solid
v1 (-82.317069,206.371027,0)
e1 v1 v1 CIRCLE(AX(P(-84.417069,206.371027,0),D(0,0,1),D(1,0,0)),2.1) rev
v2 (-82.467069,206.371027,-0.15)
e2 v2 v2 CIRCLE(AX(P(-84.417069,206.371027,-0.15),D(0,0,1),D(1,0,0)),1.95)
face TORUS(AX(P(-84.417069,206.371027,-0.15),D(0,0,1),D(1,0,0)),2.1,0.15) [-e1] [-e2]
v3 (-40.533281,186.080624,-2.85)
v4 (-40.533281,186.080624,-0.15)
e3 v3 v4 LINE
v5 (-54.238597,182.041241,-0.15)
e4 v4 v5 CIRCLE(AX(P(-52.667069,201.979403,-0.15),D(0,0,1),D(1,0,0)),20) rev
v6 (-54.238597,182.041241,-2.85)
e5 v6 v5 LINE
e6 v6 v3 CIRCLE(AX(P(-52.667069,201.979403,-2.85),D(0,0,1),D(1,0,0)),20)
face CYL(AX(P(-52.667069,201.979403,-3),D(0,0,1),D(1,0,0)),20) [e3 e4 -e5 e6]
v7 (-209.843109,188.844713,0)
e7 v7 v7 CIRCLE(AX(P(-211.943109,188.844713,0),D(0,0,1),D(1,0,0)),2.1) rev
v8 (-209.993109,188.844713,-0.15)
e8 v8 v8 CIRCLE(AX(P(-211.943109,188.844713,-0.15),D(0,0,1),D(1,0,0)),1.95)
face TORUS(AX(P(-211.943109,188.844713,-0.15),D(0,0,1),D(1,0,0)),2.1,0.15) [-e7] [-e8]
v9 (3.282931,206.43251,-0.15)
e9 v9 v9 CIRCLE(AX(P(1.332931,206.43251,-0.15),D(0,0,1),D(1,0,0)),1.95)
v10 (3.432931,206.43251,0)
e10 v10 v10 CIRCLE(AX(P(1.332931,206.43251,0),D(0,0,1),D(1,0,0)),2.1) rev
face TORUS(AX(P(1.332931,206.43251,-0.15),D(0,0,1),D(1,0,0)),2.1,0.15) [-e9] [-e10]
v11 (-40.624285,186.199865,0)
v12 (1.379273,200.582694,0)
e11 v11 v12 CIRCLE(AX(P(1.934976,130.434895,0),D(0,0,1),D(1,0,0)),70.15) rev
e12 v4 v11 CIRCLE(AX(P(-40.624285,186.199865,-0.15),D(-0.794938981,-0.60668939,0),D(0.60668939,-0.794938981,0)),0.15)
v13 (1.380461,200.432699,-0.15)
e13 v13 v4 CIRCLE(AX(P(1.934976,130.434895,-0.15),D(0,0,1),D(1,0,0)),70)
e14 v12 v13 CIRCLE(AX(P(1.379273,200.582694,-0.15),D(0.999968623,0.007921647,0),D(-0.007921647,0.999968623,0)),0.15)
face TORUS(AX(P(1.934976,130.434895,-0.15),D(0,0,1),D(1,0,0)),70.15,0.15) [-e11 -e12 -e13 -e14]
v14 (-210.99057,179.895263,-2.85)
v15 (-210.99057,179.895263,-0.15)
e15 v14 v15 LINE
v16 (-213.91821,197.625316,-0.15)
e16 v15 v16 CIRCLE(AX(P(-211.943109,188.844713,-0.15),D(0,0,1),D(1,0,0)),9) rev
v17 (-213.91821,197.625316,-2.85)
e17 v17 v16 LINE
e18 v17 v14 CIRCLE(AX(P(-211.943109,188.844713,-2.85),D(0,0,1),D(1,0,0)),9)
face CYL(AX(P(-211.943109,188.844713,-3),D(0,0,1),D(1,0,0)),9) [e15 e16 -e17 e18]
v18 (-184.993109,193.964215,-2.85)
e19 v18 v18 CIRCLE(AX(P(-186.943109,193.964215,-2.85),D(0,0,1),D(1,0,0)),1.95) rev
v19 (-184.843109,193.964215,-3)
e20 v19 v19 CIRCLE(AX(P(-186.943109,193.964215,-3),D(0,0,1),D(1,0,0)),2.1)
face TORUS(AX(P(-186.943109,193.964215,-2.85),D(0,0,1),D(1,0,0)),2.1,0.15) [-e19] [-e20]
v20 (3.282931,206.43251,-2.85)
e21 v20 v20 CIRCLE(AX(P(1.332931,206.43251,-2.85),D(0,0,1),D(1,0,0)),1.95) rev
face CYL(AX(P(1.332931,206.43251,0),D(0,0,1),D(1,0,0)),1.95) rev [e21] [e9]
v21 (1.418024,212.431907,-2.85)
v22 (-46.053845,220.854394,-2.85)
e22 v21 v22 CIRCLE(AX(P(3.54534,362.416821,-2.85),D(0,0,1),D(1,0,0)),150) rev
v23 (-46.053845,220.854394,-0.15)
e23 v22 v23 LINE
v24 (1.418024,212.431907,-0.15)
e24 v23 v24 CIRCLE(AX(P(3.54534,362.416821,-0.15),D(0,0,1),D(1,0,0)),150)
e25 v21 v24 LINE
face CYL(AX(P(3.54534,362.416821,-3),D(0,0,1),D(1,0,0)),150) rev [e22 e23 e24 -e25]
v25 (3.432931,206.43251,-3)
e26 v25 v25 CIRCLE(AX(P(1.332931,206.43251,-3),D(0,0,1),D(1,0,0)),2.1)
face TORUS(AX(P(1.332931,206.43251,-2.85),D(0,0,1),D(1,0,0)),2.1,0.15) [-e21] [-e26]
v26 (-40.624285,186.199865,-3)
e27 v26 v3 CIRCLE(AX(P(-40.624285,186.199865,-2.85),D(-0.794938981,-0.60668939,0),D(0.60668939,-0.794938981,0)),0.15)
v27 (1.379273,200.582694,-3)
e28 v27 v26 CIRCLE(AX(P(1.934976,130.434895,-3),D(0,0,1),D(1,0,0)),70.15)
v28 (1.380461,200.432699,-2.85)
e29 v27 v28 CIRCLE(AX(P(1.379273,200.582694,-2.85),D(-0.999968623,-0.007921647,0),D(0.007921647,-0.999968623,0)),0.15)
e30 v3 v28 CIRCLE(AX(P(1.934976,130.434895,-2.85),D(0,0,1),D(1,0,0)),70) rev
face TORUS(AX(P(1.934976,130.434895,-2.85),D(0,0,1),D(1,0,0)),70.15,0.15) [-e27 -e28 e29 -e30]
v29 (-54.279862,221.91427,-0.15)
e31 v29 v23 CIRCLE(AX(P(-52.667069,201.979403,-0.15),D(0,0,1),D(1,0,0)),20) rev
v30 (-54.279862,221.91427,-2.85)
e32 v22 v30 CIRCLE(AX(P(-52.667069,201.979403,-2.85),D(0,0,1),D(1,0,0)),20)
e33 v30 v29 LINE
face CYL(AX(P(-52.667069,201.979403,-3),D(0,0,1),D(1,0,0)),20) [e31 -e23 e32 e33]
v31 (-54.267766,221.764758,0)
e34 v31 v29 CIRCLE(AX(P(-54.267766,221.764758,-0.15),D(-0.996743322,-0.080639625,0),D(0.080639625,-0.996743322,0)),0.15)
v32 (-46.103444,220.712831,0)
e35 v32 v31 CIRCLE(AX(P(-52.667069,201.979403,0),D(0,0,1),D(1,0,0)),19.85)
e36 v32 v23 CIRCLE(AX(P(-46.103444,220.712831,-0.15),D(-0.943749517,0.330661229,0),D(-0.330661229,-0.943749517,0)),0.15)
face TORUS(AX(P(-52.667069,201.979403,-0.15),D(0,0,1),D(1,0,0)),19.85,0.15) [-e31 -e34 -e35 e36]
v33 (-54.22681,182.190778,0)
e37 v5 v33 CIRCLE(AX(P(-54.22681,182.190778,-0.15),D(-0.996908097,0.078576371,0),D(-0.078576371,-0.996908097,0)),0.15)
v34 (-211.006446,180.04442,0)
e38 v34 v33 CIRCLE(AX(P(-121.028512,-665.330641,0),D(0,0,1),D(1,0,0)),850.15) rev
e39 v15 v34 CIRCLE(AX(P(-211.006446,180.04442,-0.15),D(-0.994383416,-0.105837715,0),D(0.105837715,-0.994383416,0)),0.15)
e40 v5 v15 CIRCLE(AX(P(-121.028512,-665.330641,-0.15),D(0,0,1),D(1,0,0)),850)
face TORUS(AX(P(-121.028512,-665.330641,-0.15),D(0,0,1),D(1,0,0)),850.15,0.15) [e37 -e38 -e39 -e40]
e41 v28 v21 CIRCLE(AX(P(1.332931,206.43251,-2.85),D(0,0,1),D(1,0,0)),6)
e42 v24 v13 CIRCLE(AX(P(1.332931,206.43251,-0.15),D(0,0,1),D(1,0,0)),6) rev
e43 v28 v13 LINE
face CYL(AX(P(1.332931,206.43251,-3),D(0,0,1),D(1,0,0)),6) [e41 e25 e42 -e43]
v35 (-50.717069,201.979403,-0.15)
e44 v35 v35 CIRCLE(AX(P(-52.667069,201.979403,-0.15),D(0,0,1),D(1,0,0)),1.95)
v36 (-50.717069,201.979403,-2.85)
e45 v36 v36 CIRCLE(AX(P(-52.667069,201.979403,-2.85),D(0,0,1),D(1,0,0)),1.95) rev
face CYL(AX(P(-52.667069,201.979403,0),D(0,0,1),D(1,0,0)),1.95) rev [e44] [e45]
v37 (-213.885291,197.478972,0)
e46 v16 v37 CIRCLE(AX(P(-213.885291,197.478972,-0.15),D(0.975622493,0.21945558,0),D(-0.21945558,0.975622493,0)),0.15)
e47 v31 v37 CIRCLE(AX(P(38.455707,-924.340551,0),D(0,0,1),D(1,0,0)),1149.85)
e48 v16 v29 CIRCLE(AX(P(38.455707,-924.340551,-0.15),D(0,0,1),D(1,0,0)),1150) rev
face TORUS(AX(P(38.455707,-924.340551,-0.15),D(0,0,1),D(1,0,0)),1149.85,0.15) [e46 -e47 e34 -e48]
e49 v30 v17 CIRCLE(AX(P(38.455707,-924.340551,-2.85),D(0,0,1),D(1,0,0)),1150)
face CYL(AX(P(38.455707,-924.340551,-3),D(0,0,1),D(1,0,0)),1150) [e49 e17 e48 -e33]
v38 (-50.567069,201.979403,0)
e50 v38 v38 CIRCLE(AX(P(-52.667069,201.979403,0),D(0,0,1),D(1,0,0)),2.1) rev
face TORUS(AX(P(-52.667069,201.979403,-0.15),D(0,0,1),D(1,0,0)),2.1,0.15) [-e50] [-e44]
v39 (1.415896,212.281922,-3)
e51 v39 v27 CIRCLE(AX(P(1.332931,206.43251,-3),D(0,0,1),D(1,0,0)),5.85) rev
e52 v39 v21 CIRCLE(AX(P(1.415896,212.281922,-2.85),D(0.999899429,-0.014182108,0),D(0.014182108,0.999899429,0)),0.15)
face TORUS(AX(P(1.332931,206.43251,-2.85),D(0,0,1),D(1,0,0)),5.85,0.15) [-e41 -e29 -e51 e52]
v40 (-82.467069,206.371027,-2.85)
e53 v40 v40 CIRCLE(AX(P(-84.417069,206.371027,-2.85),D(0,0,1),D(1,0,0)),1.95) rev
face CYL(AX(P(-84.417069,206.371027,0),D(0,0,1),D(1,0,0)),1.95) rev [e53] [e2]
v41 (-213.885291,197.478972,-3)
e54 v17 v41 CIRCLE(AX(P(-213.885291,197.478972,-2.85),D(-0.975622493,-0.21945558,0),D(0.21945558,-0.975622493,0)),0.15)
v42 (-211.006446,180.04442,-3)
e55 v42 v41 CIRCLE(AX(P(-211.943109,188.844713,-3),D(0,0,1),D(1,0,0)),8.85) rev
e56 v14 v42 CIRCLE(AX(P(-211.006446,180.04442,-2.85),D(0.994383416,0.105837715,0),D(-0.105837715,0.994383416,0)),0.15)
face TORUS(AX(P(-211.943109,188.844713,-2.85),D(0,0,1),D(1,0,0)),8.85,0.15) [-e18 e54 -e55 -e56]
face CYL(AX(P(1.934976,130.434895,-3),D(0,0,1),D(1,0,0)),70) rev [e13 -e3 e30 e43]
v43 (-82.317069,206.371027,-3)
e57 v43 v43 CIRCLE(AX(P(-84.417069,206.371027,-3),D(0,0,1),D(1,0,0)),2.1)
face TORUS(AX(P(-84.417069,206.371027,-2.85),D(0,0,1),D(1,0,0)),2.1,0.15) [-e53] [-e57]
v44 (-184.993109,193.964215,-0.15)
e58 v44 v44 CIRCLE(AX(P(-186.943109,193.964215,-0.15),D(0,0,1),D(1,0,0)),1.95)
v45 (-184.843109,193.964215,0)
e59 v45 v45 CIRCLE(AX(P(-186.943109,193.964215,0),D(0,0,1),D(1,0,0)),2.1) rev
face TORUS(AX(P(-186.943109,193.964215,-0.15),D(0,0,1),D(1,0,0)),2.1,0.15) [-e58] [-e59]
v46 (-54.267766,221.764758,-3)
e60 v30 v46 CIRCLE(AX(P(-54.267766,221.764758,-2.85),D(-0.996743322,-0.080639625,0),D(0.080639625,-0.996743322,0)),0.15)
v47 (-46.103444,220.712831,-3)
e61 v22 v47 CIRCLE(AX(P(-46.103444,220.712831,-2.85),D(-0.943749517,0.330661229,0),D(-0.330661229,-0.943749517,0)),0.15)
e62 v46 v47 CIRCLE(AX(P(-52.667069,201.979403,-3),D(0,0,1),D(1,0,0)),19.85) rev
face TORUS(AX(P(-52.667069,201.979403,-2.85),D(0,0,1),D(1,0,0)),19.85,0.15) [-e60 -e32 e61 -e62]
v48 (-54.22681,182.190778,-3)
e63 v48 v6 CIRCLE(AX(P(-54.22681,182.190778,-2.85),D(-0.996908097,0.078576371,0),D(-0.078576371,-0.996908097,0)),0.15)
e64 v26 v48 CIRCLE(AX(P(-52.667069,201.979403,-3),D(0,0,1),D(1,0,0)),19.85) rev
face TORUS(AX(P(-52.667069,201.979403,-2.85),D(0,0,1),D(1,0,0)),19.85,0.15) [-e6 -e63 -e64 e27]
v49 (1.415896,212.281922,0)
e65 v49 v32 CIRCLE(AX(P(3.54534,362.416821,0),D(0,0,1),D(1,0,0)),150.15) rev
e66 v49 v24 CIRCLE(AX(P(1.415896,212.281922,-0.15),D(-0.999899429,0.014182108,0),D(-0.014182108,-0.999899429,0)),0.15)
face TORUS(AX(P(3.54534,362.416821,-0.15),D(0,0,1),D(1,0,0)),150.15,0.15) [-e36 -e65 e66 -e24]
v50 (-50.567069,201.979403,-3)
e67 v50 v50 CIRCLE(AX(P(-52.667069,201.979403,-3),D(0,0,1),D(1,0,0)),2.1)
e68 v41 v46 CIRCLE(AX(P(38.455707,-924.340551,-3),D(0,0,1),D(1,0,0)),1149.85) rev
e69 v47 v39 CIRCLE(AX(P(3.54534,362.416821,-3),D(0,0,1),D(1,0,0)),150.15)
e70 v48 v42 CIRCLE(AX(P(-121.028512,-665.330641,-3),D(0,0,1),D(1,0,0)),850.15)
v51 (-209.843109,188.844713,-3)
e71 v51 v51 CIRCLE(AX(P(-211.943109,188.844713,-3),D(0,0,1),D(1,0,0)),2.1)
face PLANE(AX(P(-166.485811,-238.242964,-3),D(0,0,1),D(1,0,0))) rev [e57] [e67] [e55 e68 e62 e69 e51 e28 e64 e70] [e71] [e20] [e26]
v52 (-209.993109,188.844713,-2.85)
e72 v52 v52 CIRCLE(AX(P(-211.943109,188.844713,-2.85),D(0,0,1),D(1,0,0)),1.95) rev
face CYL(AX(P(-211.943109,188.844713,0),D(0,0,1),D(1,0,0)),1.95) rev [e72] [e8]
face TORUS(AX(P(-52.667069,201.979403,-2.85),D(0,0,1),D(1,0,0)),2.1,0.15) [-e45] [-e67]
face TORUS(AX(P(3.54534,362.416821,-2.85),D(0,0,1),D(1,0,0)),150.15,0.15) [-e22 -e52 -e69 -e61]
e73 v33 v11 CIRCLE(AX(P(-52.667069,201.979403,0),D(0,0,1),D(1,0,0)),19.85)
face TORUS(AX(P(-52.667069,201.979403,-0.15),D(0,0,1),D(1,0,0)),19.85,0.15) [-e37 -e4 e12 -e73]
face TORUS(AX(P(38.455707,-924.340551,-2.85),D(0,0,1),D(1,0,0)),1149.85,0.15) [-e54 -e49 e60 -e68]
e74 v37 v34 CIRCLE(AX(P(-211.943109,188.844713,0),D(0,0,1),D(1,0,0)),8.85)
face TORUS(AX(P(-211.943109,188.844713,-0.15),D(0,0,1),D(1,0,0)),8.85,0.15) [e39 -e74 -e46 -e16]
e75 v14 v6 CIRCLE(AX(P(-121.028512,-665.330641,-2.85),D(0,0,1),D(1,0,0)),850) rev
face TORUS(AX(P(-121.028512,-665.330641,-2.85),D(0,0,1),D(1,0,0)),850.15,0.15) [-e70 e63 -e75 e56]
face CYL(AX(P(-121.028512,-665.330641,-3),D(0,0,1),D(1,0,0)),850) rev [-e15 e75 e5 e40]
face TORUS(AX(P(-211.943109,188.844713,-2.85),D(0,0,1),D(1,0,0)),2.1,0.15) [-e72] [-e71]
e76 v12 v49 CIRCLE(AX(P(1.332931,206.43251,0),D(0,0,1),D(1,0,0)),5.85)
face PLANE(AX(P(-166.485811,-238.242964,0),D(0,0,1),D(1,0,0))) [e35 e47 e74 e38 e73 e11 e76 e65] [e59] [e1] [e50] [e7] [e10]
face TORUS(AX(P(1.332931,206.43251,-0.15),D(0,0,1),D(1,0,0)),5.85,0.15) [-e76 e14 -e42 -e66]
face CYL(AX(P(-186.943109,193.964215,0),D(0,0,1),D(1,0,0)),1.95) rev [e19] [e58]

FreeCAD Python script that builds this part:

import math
import FreeCAD as App
import Part
import Sketcher
from FreeCAD import Vector


def edges_at(feature, points):
    """Names of the edges that pass closest to the given points."""
    edges = feature.Shape.Edges
    near = lambda p: min(range(len(edges)), key=lambda i: edges[i].distToShape(Part.Vertex(*p))[0])
    return sorted({f"Edge{near(p) + 1}" for p in points})

doc = App.newDocument("Part")
params = doc.addObject("Spreadsheet::Sheet", "Params")
for row, (alias, value) in enumerate([
    ("sketch1_radius", "1150 mm"),
    ("sketch1_radius2", "9 mm"),
    ("sketch1_radius3", "850 mm"),
    ("sketch1_radius4", "20 mm"),
    ("sketch1_radius5", "70 mm"),
    ("pad1_length", "3 mm"),
    ("sketch2_diameter", "3.9 mm"),
    ("hole_diameter", "3.9 mm"),
    ("hole_depth", "10 mm"),
    ("fillet_radius", "0.15 mm"),
], start=1):
    params.set(f"A{row}", alias)
    params.set(f"B{row}", "=" + value)
    params.setAlias(f"B{row}", alias)

body = doc.addObject("PartDesign::Body", "Body")

# Sketch on XY plane
sketch1 = body.newObject("Sketcher::SketchObject", "Sketch")
sketch1.AttachmentSupport = (doc.getObject("XY_Plane"), [""])
sketch1.MapMode = "FlatFace"
sketch1.addGeometry([
    Part.ArcOfCircle(Part.Circle(Vector(38, -924, 0), Vector(0, 0, 1), 1150), math.radians(94.63), math.radians(102.68)),  # 0
    Part.ArcOfCircle(Part.Circle(Vector(-212, 189, 0), Vector(0, 0, 1), 9), math.radians(103), math.radians(276)),  # 1
    Part.ArcOfCircle(Part.Circle(Vector(-121, -665, 0), Vector(0, 0, 1), 850), math.radians(85.49), math.radians(96.08)),  # 2
    Part.ArcOfCircle(Part.Circle(Vector(-53, 202, 0), Vector(0, 0, 1), 20), math.radians(-95), math.radians(-53)),  # 3
    Part.ArcOfCircle(Part.Circle(Vector(2, 130, 0), Vector(0, 0, 1), 70), math.radians(90), math.radians(127)),  # 4
    Part.ArcOfCircle(Part.Circle(Vector(1, 206, 0), Vector(0, 0, 1), 6), math.radians(-90), math.radians(89)),  # 5
    Part.ArcOfCircle(Part.Circle(Vector(4, 362, 0), Vector(0, 0, 1), 150), math.radians(-109.31), math.radians(-90.81)),  # 6
    Part.ArcOfCircle(Part.Circle(Vector(-53, 202, 0), Vector(0, 0, 1), 20), math.radians(71), math.radians(95)),  # 7
], False)
sketch1.addConstraint([
    Sketcher.Constraint("Tangent", 0, 2, 1, 1),
    Sketcher.Constraint("Tangent", 1, 2, 2, 2),
    Sketcher.Constraint("Tangent", 2, 1, 3, 1),
    Sketcher.Constraint("Tangent", 3, 2, 4, 2),
    Sketcher.Constraint("Tangent", 4, 1, 5, 1),
    Sketcher.Constraint("Tangent", 5, 2, 6, 2),
    Sketcher.Constraint("Tangent", 6, 1, 7, 1),
    Sketcher.Constraint("Tangent", 7, 2, 0, 1),
    Sketcher.Constraint("Coincident", 7, 3, 3, 3),
    Sketcher.Constraint("Equal", 3, 7),
    Sketcher.Constraint("Radius", 0, 1150.0),
    Sketcher.Constraint("Radius", 1, 9.0),
    Sketcher.Constraint("Radius", 2, 850.0),
    Sketcher.Constraint("Radius", 3, 20.0),
    Sketcher.Constraint("Radius", 4, 70.0),
    Sketcher.Constraint("Radius", 5, 6.0),
    Sketcher.Constraint("Radius", 6, 150.0),
    Sketcher.Constraint("DistanceX", 3, 3, 5, 3, 54.0),
    Sketcher.Constraint("DistanceY", -1, 1, 4, 1, 200.432699),
    Sketcher.Constraint("DistanceX", 1, 2, 7, 3, 158.323501),
    Sketcher.Constraint("DistanceY", 0, 3, -1, 1, 924.340551),
    Sketcher.Constraint("DistanceX", 1, 3, -1, 1, 211.943109),
    Sketcher.Constraint("DistanceY", 2, 3, -1, 1, 665.330641),
])
sketch1.setExpression("Constraints[10]", "Params.sketch1_radius")
sketch1.setExpression("Constraints[11]", "Params.sketch1_radius2")
sketch1.setExpression("Constraints[12]", "Params.sketch1_radius3")
sketch1.setExpression("Constraints[13]", "Params.sketch1_radius4")
sketch1.setExpression("Constraints[14]", "Params.sketch1_radius5")
pad1 = body.newObject("PartDesign::Pad", "Pad")
pad1.Profile = sketch1
pad1.setExpression("Length", "Params.pad1_length")
pad1.Reversed = True

# Sketch on XY plane
sketch2 = body.newObject("Sketcher::SketchObject", "Sketch001")
sketch2.AttachmentSupport = (doc.getObject("XY_Plane"), [""])
sketch2.MapMode = "FlatFace"
sketch2.addGeometry([
    Part.Circle(Vector(-211.9, 188.8, 0), Vector(0, 0, 1), 1.9),  # 0
    Part.Circle(Vector(-186.9, 194, 0), Vector(0, 0, 1), 1.9),  # 1
    Part.Circle(Vector(-84.4, 206.4, 0), Vector(0, 0, 1), 1.9),  # 2
    Part.Circle(Vector(-52.7, 202, 0), Vector(0, 0, 1), 1.9),  # 3
    Part.Circle(Vector(1.3, 206.4, 0), Vector(0, 0, 1), 1.9),  # 4
], False)
sketch2.addConstraint([
    Sketcher.Constraint("Equal", 0, 1),
    Sketcher.Constraint("Equal", 1, 2),
    Sketcher.Constraint("Equal", 2, 3),
    Sketcher.Constraint("Equal", 3, 4),
    Sketcher.Constraint("Diameter", 0, 3.9),
    Sketcher.Constraint("DistanceX", 0, 3, 1, 3, 25.0),
    Sketcher.Constraint("DistanceX", 3, 3, 4, 3, 54.0),
    Sketcher.Constraint("DistanceX", 2, 3, 3, 3, 31.75),
    Sketcher.Constraint("DistanceY", 0, 3, 1, 3, 5.119502),
    Sketcher.Constraint("DistanceX", 0, 3, -1, 1, 211.943109),
    Sketcher.Constraint("DistanceX", 2, 3, -1, 1, 84.417069),
    Sketcher.Constraint("DistanceY", -1, 1, 4, 3, 206.43251),
    Sketcher.Constraint("DistanceY", 1, 3, 2, 3, 12.406812),
    Sketcher.Constraint("DistanceY", 1, 3, 3, 3, 8.015188),
    Sketcher.Constraint("DistanceY", -1, 1, 0, 3, 188.844713),
])
sketch2.setExpression("Constraints[4]", "Params.sketch2_diameter")
doc.recompute()
hole = body.newObject("PartDesign::Hole", "Hole")
hole.Profile = sketch2
hole.ThreadType = "None"
hole.setExpression("Diameter", "Params.hole_diameter")
hole.DepthType = "Dimension"
hole.setExpression("Depth", "Params.hole_depth")
hole.DrillPoint = "Angled"
hole.DrillPointAngle = 118
doc.recompute()

fillet = body.newObject("PartDesign::Fillet", "Fillet")
fillet.Base = (hole, edges_at(hole, [
    (-47.013, 182.795, -3),
    (-132.664, 184.59, 0),
    (-220.823, 187.378, 0),
    (-20.742, 196.66, -3),
    (7.333, 206.414, -3),
    (-22.659, 214.723, -3),
    (-50.111, 221.815, -3),
    (-134.526, 212.575, -3),
    (3.283, 206.433, -3),
    (3.283, 206.433, 0),
    (-50.717, 201.979, -3),
    (-50.717, 201.979, 0),
    (-82.467, 206.371, -3),
    (-82.467, 206.371, 0),
    (-220.823, 187.378, -3),
    (-184.993, 193.964, -3),
    (-184.993, 193.964, 0),
    (-209.993, 188.845, -3),
    (-209.993, 188.845, 0),
    (-132.664, 184.59, -3),
    (-134.526, 212.575, 0),
    (-50.111, 221.815, 0),
    (-22.659, 214.723, 0),
    (7.333, 206.414, 0),
    (-20.742, 196.66, 0),
    (-47.013, 182.795, 0),
]))
fillet.setExpression("Radius", "Params.fillet_radius")

doc.recompute()
